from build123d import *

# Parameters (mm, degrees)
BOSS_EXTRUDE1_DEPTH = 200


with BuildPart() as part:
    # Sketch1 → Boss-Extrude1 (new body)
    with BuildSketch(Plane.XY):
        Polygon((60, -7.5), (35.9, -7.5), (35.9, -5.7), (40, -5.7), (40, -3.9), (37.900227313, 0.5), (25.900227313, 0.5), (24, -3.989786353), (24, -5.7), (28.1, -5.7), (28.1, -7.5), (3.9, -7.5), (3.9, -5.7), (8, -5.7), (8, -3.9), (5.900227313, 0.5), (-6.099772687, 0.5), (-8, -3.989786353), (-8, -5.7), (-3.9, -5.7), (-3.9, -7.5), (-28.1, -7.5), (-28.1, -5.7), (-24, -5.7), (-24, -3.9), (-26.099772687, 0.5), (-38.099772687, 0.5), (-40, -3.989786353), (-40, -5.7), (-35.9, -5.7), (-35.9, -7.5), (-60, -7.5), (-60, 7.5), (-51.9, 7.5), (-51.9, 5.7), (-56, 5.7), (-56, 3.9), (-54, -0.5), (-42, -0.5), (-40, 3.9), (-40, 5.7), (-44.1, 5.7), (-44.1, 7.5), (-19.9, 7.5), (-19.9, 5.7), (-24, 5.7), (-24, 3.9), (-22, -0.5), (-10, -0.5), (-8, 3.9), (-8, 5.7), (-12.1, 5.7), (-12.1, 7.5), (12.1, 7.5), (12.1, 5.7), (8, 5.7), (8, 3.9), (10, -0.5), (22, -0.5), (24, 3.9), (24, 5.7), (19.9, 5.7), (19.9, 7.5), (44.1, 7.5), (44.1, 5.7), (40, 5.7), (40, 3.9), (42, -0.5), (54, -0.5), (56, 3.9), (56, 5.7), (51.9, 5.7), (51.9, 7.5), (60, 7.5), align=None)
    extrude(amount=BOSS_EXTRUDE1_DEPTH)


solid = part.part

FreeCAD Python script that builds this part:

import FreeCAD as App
import Part
import Sketcher

V = App.Vector

doc = App.newDocument("Part")
body = doc.addObject("PartDesign::Body", "Body")

# Sketch on XY plane
sketch1 = body.newObject("Sketcher::SketchObject", "Sketch")
sketch1.AttachmentSupport = (doc.getObject("XY_Plane"), [""])
sketch1.MapMode = "FlatFace"
sketch1.addGeometry(Part.LineSegment(V(35.9, -7.5, 0), V(60, -7.5, 0)), False)
sketch1.addGeometry(Part.LineSegment(V(60, -7.5, 0), V(60, 7.5, 0)), False)
sketch1.addGeometry(Part.LineSegment(V(60, 7.5, 0), V(51.9, 7.5, 0)), False)
sketch1.addGeometry(Part.LineSegment(V(51.9, 7.5, 0), V(51.9, 5.7, 0)), False)
sketch1.addGeometry(Part.LineSegment(V(51.9, 5.7, 0), V(56, 5.7, 0)), False)
sketch1.addGeometry(Part.LineSegment(V(56, 5.7, 0), V(56, 3.9, 0)), False)
sketch1.addGeometry(Part.LineSegment(V(56, 3.9, 0), V(54, -0.5, 0)), False)
sketch1.addGeometry(Part.LineSegment(V(54, -0.5, 0), V(42, -0.5, 0)), False)
sketch1.addGeometry(Part.LineSegment(V(42, -0.5, 0), V(40, 3.9, 0)), False)
sketch1.addGeometry(Part.LineSegment(V(40, 3.9, 0), V(40, 5.7, 0)), False)
sketch1.addGeometry(Part.LineSegment(V(40, 5.7, 0), V(44.1, 5.7, 0)), False)
sketch1.addGeometry(Part.LineSegment(V(44.1, 5.7, 0), V(44.1, 7.5, 0)), False)
sketch1.addGeometry(Part.LineSegment(V(44.1, 7.5, 0), V(19.9, 7.5, 0)), False)
sketch1.addGeometry(Part.LineSegment(V(19.9, 7.5, 0), V(19.9, 5.7, 0)), False)
sketch1.addGeometry(Part.LineSegment(V(19.9, 5.7, 0), V(24, 5.7, 0)), False)
sketch1.addGeometry(Part.LineSegment(V(24, 5.7, 0), V(24, 3.9, 0)), False)
sketch1.addGeometry(Part.LineSegment(V(24, 3.9, 0), V(22, -0.5, 0)), False)
sketch1.addGeometry(Part.LineSegment(V(22, -0.5, 0), V(10, -0.5, 0)), False)
sketch1.addGeometry(Part.LineSegment(V(10, -0.5, 0), V(8, 3.9, 0)), False)
sketch1.addGeometry(Part.LineSegment(V(8, 3.9, 0), V(8, 5.7, 0)), False)
sketch1.addGeometry(Part.LineSegment(V(8, 5.7, 0), V(12.1, 5.7, 0)), False)
sketch1.addGeometry(Part.LineSegment(V(12.1, 5.7, 0), V(12.1, 7.5, 0)), False)
sketch1.addGeometry(Part.LineSegment(V(12.1, 7.5, 0), V(-12.1, 7.5, 0)), False)
sketch1.addGeometry(Part.LineSegment(V(-12.1, 7.5, 0), V(-12.1, 5.7, 0)), False)
sketch1.addGeometry(Part.LineSegment(V(-12.1, 5.7, 0), V(-8, 5.7, 0)), False)
sketch1.addGeometry(Part.LineSegment(V(-8, 5.7, 0), V(-8, 3.9, 0)), False)
sketch1.addGeometry(Part.LineSegment(V(-8, 3.9, 0), V(-10, -0.5, 0)), False)
sketch1.addGeometry(Part.LineSegment(V(-10, -0.5, 0), V(-22, -0.5, 0)), False)
sketch1.addGeometry(Part.LineSegment(V(-22, -0.5, 0), V(-24, 3.9, 0)), False)
sketch1.addGeometry(Part.LineSegment(V(-24, 3.9, 0), V(-24, 5.7, 0)), False)
sketch1.addGeometry(Part.LineSegment(V(-24, 5.7, 0), V(-19.9, 5.7, 0)), False)
sketch1.addGeometry(Part.LineSegment(V(-19.9, 5.7, 0), V(-19.9, 7.5, 0)), False)
sketch1.addGeometry(Part.LineSegment(V(-19.9, 7.5, 0), V(-44.1, 7.5, 0)), False)
sketch1.addGeometry(Part.LineSegment(V(-44.1, 7.5, 0), V(-44.1, 5.7, 0)), False)
sketch1.addGeometry(Part.LineSegment(V(-44.1, 5.7, 0), V(-40, 5.7, 0)), False)
sketch1.addGeometry(Part.LineSegment(V(-40, 5.7, 0), V(-40, 3.9, 0)), False)
sketch1.addGeometry(Part.LineSegment(V(-40, 3.9, 0), V(-42, -0.5, 0)), False)
sketch1.addGeometry(Part.LineSegment(V(-42, -0.5, 0), V(-54, -0.5, 0)), False)
sketch1.addGeometry(Part.LineSegment(V(-54, -0.5, 0), V(-56, 3.9, 0)), False)
sketch1.addGeometry(Part.LineSegment(V(-56, 3.9, 0), V(-56, 5.7, 0)), False)
sketch1.addGeometry(Part.LineSegment(V(-56, 5.7, 0), V(-51.9, 5.7, 0)), False)
sketch1.addGeometry(Part.LineSegment(V(-51.9, 5.7, 0), V(-51.9, 7.5, 0)), False)
sketch1.addGeometry(Part.LineSegment(V(-51.9, 7.5, 0), V(-60, 7.5, 0)), False)
sketch1.addGeometry(Part.LineSegment(V(-60, 7.5, 0), V(-60, -7.5, 0)), False)
sketch1.addGeometry(Part.LineSegment(V(-60, -7.5, 0), V(-35.9, -7.5, 0)), False)
sketch1.addGeometry(Part.LineSegment(V(-35.9, -7.5, 0), V(-35.9, -5.7, 0)), False)
sketch1.addGeometry(Part.LineSegment(V(-35.9, -5.7, 0), V(-40, -5.7, 0)), False)
sketch1.addGeometry(Part.LineSegment(V(-40, -5.7, 0), V(-40, -4, 0)), False)
sketch1.addGeometry(Part.LineSegment(V(-40, -4, 0), V(-38.1, 0.5, 0)), False)
sketch1.addGeometry(Part.LineSegment(V(-38.1, 0.5, 0), V(-26.1, 0.5, 0)), False)
sketch1.addGeometry(Part.LineSegment(V(-26.1, 0.5, 0), V(-24, -3.9, 0)), False)
sketch1.addGeometry(Part.LineSegment(V(-24, -3.9, 0), V(-24, -5.7, 0)), False)
sketch1.addGeometry(Part.LineSegment(V(-24, -5.7, 0), V(-28.1, -5.7, 0)), False)
sketch1.addGeometry(Part.LineSegment(V(-28.1, -5.7, 0), V(-28.1, -7.5, 0)), False)
sketch1.addGeometry(Part.LineSegment(V(-28.1, -7.5, 0), V(-3.9, -7.5, 0)), False)
sketch1.addGeometry(Part.LineSegment(V(-3.9, -7.5, 0), V(-3.9, -5.7, 0)), False)
sketch1.addGeometry(Part.LineSegment(V(-3.9, -5.7, 0), V(-8, -5.7, 0)), False)
sketch1.addGeometry(Part.LineSegment(V(-8, -5.7, 0), V(-8, -4, 0)), False)
sketch1.addGeometry(Part.LineSegment(V(-8, -4, 0), V(-6.1, 0.5, 0)), False)
sketch1.addGeometry(Part.LineSegment(V(-6.1, 0.5, 0), V(5.9, 0.5, 0)), False)
sketch1.addGeometry(Part.LineSegment(V(5.9, 0.5, 0), V(8, -3.9, 0)), False)
sketch1.addGeometry(Part.LineSegment(V(8, -3.9, 0), V(8, -5.7, 0)), False)
sketch1.addGeometry(Part.LineSegment(V(8, -5.7, 0), V(3.9, -5.7, 0)), False)
sketch1.addGeometry(Part.LineSegment(V(3.9, -5.7, 0), V(3.9, -7.5, 0)), False)
sketch1.addGeometry(Part.LineSegment(V(3.9, -7.5, 0), V(28.1, -7.5, 0)), False)
sketch1.addGeometry(Part.LineSegment(V(28.1, -7.5, 0), V(28.1, -5.7, 0)), False)
sketch1.addGeometry(Part.LineSegment(V(28.1, -5.7, 0), V(24, -5.7, 0)), False)
sketch1.addGeometry(Part.LineSegment(V(24, -5.7, 0), V(24, -4, 0)), False)
sketch1.addGeometry(Part.LineSegment(V(24, -4, 0), V(25.9, 0.5, 0)), False)
sketch1.addGeometry(Part.LineSegment(V(25.9, 0.5, 0), V(37.9, 0.5, 0)), False)
sketch1.addGeometry(Part.LineSegment(V(37.9, 0.5, 0), V(40, -3.9, 0)), False)
sketch1.addGeometry(Part.LineSegment(V(40, -3.9, 0), V(40, -5.7, 0)), False)
sketch1.addGeometry(Part.LineSegment(V(40, -5.7, 0), V(35.9, -5.7, 0)), False)
sketch1.addGeometry(Part.LineSegment(V(35.9, -5.7, 0), V(35.9, -7.5, 0)), False)
sketch1.addConstraint(Sketcher.Constraint("Coincident", 0, 2, 1, 1))
sketch1.addConstraint(Sketcher.Constraint("Coincident", 1, 2, 2, 1))
sketch1.addConstraint(Sketcher.Constraint("Coincident", 2, 2, 3, 1))
sketch1.addConstraint(Sketcher.Constraint("Coincident", 3, 2, 4, 1))
sketch1.addConstraint(Sketcher.Constraint("Coincident", 4, 2, 5, 1))
sketch1.addConstraint(Sketcher.Constraint("Coincident", 5, 2, 6, 1))
sketch1.addConstraint(Sketcher.Constraint("Coincident", 6, 2, 7, 1))
sketch1.addConstraint(Sketcher.Constraint("Coincident", 7, 2, 8, 1))
sketch1.addConstraint(Sketcher.Constraint("Coincident", 8, 2, 9, 1))
sketch1.addConstraint(Sketcher.Constraint("Coincident", 9, 2, 10, 1))
sketch1.addConstraint(Sketcher.Constraint("Coincident", 10, 2, 11, 1))
sketch1.addConstraint(Sketcher.Constraint("Coincident", 11, 2, 12, 1))
sketch1.addConstraint(Sketcher.Constraint("Coincident", 12, 2, 13, 1))
sketch1.addConstraint(Sketcher.Constraint("Coincident", 13, 2, 14, 1))
sketch1.addConstraint(Sketcher.Constraint("Coincident", 14, 2, 15, 1))
sketch1.addConstraint(Sketcher.Constraint("Coincident", 15, 2, 16, 1))
sketch1.addConstraint(Sketcher.Constraint("Coincident", 16, 2, 17, 1))
sketch1.addConstraint(Sketcher.Constraint("Coincident", 17, 2, 18, 1))
sketch1.addConstraint(Sketcher.Constraint("Coincident", 18, 2, 19, 1))
sketch1.addConstraint(Sketcher.Constraint("Coincident", 19, 2, 20, 1))
sketch1.addConstraint(Sketcher.Constraint("Coincident", 20, 2, 21, 1))
sketch1.addConstraint(Sketcher.Constraint("Coincident", 21, 2, 22, 1))
sketch1.addConstraint(Sketcher.Constraint("Coincident", 22, 2, 23, 1))
sketch1.addConstraint(Sketcher.Constraint("Coincident", 23, 2, 24, 1))
sketch1.addConstraint(Sketcher.Constraint("Coincident", 24, 2, 25, 1))
sketch1.addConstraint(Sketcher.Constraint("Coincident", 25, 2, 26, 1))
sketch1.addConstraint(Sketcher.Constraint("Coincident", 26, 2, 27, 1))
sketch1.addConstraint(Sketcher.Constraint("Coincident", 27, 2, 28, 1))
sketch1.addConstraint(Sketcher.Constraint("Coincident", 28, 2, 29, 1))
sketch1.addConstraint(Sketcher.Constraint("Coincident", 29, 2, 30, 1))
sketch1.addConstraint(Sketcher.Constraint("Coincident", 30, 2, 31, 1))
sketch1.addConstraint(Sketcher.Constraint("Coincident", 31, 2, 32, 1))
sketch1.addConstraint(Sketcher.Constraint("Coincident", 32, 2, 33, 1))
sketch1.addConstraint(Sketcher.Constraint("Coincident", 33, 2, 34, 1))
sketch1.addConstraint(Sketcher.Constraint("Coincident", 34, 2, 35, 1))
sketch1.addConstraint(Sketcher.Constraint("Coincident", 35, 2, 36, 1))
sketch1.addConstraint(Sketcher.Constraint("Coincident", 36, 2, 37, 1))
sketch1.addConstraint(Sketcher.Constraint("Coincident", 37, 2, 38, 1))
sketch1.addConstraint(Sketcher.Constraint("Coincident", 38, 2, 39, 1))
sketch1.addConstraint(Sketcher.Constraint("Coincident", 39, 2, 40, 1))
sketch1.addConstraint(Sketcher.Constraint("Coincident", 40, 2, 41, 1))
sketch1.addConstraint(Sketcher.Constraint("Coincident", 41, 2, 42, 1))
sketch1.addConstraint(Sketcher.Constraint("Coincident", 42, 2, 43, 1))
sketch1.addConstraint(Sketcher.Constraint("Coincident", 43, 2, 44, 1))
sketch1.addConstraint(Sketcher.Constraint("Coincident", 44, 2, 45, 1))
sketch1.addConstraint(Sketcher.Constraint("Coincident", 45, 2, 46, 1))
sketch1.addConstraint(Sketcher.Constraint("Coincident", 46, 2, 47, 1))
sketch1.addConstraint(Sketcher.Constraint("Coincident", 47, 2, 48, 1))
sketch1.addConstraint(Sketcher.Constraint("Coincident", 48, 2, 49, 1))
sketch1.addConstraint(Sketcher.Constraint("Coincident", 49, 2, 50, 1))
sketch1.addConstraint(Sketcher.Constraint("Coincident", 50, 2, 51, 1))
sketch1.addConstraint(Sketcher.Constraint("Coincident", 51, 2, 52, 1))
sketch1.addConstraint(Sketcher.Constraint("Coincident", 52, 2, 53, 1))
sketch1.addConstraint(Sketcher.Constraint("Coincident", 53, 2, 54, 1))
sketch1.addConstraint(Sketcher.Constraint("Coincident", 54, 2, 55, 1))
sketch1.addConstraint(Sketcher.Constraint("Coincident", 55, 2, 56, 1))
sketch1.addConstraint(Sketcher.Constraint("Coincident", 56, 2, 57, 1))
sketch1.addConstraint(Sketcher.Constraint("Coincident", 57, 2, 58, 1))
sketch1.addConstraint(Sketcher.Constraint("Coincident", 58, 2, 59, 1))
sketch1.addConstraint(Sketcher.Constraint("Coincident", 59, 2, 60, 1))
sketch1.addConstraint(Sketcher.Constraint("Coincident", 60, 2, 61, 1))
sketch1.addConstraint(Sketcher.Constraint("Coincident", 61, 2, 62, 1))
sketch1.addConstraint(Sketcher.Constraint("Coincident", 62, 2, 63, 1))
sketch1.addConstraint(Sketcher.Constraint("Coincident", 63, 2, 64, 1))
sketch1.addConstraint(Sketcher.Constraint("Coincident", 64, 2, 65, 1))
sketch1.addConstraint(Sketcher.Constraint("Coincident", 65, 2, 66, 1))
sketch1.addConstraint(Sketcher.Constraint("Coincident", 66, 2, 67, 1))
sketch1.addConstraint(Sketcher.Constraint("Coincident", 67, 2, 68, 1))
sketch1.addConstraint(Sketcher.Constraint("Coincident", 68, 2, 69, 1))
sketch1.addConstraint(Sketcher.Constraint("Coincident", 69, 2, 70, 1))
sketch1.addConstraint(Sketcher.Constraint("Coincident", 70, 2, 71, 1))
sketch1.addConstraint(Sketcher.Constraint("Coincident", 71, 2, 72, 1))
sketch1.addConstraint(Sketcher.Constraint("Coincident", 72, 2, 73, 1))
sketch1.addConstraint(Sketcher.Constraint("Coincident", 73, 2, 0, 1))
sketch1.addConstraint(Sketcher.Constraint("Horizontal", 0))
sketch1.addConstraint(Sketcher.Constraint("Vertical", 1))
sketch1.addConstraint(Sketcher.Constraint("Horizontal", 2))
sketch1.addConstraint(Sketcher.Constraint("Vertical", 3))
sketch1.addConstraint(Sketcher.Constraint("Horizontal", 4))
sketch1.addConstraint(Sketcher.Constraint("Vertical", 5))
sketch1.addConstraint(Sketcher.Constraint("Horizontal", 7))
sketch1.addConstraint(Sketcher.Constraint("Vertical", 9))
sketch1.addConstraint(Sketcher.Constraint("Horizontal", 10))
sketch1.addConstraint(Sketcher.Constraint("Vertical", 11))
sketch1.addConstraint(Sketcher.Constraint("Horizontal", 12))
sketch1.addConstraint(Sketcher.Constraint("Vertical", 13))
sketch1.addConstraint(Sketcher.Constraint("Horizontal", 14))
sketch1.addConstraint(Sketcher.Constraint("Vertical", 15))
sketch1.addConstraint(Sketcher.Constraint("Horizontal", 17))
sketch1.addConstraint(Sketcher.Constraint("Vertical", 19))
sketch1.addConstraint(Sketcher.Constraint("Horizontal", 20))
sketch1.addConstraint(Sketcher.Constraint("Vertical", 21))
sketch1.addConstraint(Sketcher.Constraint("Horizontal", 22))
sketch1.addConstraint(Sketcher.Constraint("Vertical", 23))
sketch1.addConstraint(Sketcher.Constraint("Horizontal", 24))
sketch1.addConstraint(Sketcher.Constraint("Vertical", 25))
sketch1.addConstraint(Sketcher.Constraint("Horizontal", 27))
sketch1.addConstraint(Sketcher.Constraint("Vertical", 29))
sketch1.addConstraint(Sketcher.Constraint("Horizontal", 30))
sketch1.addConstraint(Sketcher.Constraint("Vertical", 31))
sketch1.addConstraint(Sketcher.Constraint("Horizontal", 32))
sketch1.addConstraint(Sketcher.Constraint("Vertical", 33))
sketch1.addConstraint(Sketcher.Constraint("Horizontal", 34))
sketch1.addConstraint(Sketcher.Constraint("Vertical", 35))
sketch1.addConstraint(Sketcher.Constraint("Horizontal", 37))
sketch1.addConstraint(Sketcher.Constraint("Vertical", 39))
sketch1.addConstraint(Sketcher.Constraint("Horizontal", 40))
sketch1.addConstraint(Sketcher.Constraint("Vertical", 41))
sketch1.addConstraint(Sketcher.Constraint("Horizontal", 42))
sketch1.addConstraint(Sketcher.Constraint("Vertical", 43))
sketch1.addConstraint(Sketcher.Constraint("Horizontal", 44))
sketch1.addConstraint(Sketcher.Constraint("Vertical", 45))
sketch1.addConstraint(Sketcher.Constraint("Horizontal", 46))
sketch1.addConstraint(Sketcher.Constraint("Vertical", 47))
sketch1.addConstraint(Sketcher.Constraint("Horizontal", 49))
sketch1.addConstraint(Sketcher.Constraint("Vertical", 51))
sketch1.addConstraint(Sketcher.Constraint("Horizontal", 52))
sketch1.addConstraint(Sketcher.Constraint("Vertical", 53))
sketch1.addConstraint(Sketcher.Constraint("Horizontal", 54))
sketch1.addConstraint(Sketcher.Constraint("Vertical", 55))
sketch1.addConstraint(Sketcher.Constraint("Horizontal", 56))
sketch1.addConstraint(Sketcher.Constraint("Vertical", 57))
sketch1.addConstraint(Sketcher.Constraint("Horizontal", 59))
sketch1.addConstraint(Sketcher.Constraint("Vertical", 61))
sketch1.addConstraint(Sketcher.Constraint("Horizontal", 62))
sketch1.addConstraint(Sketcher.Constraint("Vertical", 63))
sketch1.addConstraint(Sketcher.Constraint("Horizontal", 64))
sketch1.addConstraint(Sketcher.Constraint("Vertical", 65))
sketch1.addConstraint(Sketcher.Constraint("Horizontal", 66))
sketch1.addConstraint(Sketcher.Constraint("Vertical", 67))
sketch1.addConstraint(Sketcher.Constraint("Horizontal", 69))
sketch1.addConstraint(Sketcher.Constraint("Vertical", 71))
sketch1.addConstraint(Sketcher.Constraint("Horizontal", 72))
sketch1.addConstraint(Sketcher.Constraint("Vertical", 73))
sketch1.addConstraint(Sketcher.Constraint("Symmetric", 0, 2, 42, 2, -1, 1))
sketch1.addConstraint(Sketcher.Constraint("Symmetric", 9, 2, 46, 2, -1, 1))
sketch1.addConstraint(Sketcher.Constraint("Symmetric", 15, 2, 50, 2, -1, 1))
sketch1.addConstraint(Sketcher.Constraint("Symmetric", 19, 2, 56, 2, -1, 1))
sketch1.addConstraint(Sketcher.Constraint("Symmetric", 25, 2, 60, 2, -1, 1))
sketch1.addConstraint(Sketcher.Constraint("Symmetric", 29, 2, 66, 2, -1, 1))
sketch1.addConstraint(Sketcher.Constraint("Symmetric", 35, 2, 70, 2, -1, 1))
sketch1.addConstraint(Sketcher.Constraint("Symmetric", 20, 2, 23, 2, -2))
sketch1.addConstraint(Sketcher.Constraint("Symmetric", 18, 2, 25, 2, -2))
sketch1.addConstraint(Sketcher.Constraint("Symmetric", 17, 2, 26, 2, -2))
sketch1.addConstraint(Sketcher.Constraint("Symmetric", 15, 2, 28, 2, -2))
sketch1.addConstraint(Sketcher.Constraint("Symmetric", 13, 2, 30, 2, -2))
sketch1.addConstraint(Sketcher.Constraint("Symmetric", 11, 2, 32, 2, -2))
sketch1.addConstraint(Sketcher.Constraint("Symmetric", 9, 2, 34, 2, -2))
sketch1.addConstraint(Sketcher.Constraint("Symmetric", 7, 2, 36, 2, -2))
sketch1.addConstraint(Sketcher.Constraint("Symmetric", 5, 2, 38, 2, -2))
sketch1.addConstraint(Sketcher.Constraint("Symmetric", 3, 2, 40, 2, -2))
sketch1.addConstraint(Sketcher.Constraint("Symmetric", 55, 2, 62, 2, -2))
sketch1.addConstraint(Sketcher.Constraint("Symmetric", 53, 2, 64, 2, -2))
sketch1.addConstraint(Sketcher.Constraint("Symmetric", 45, 2, 72, 2, -2))
sketch1.addConstraint(Sketcher.Constraint("Parallel", 6, 16))
sketch1.addConstraint(Sketcher.Constraint("Parallel", 8, 18))
sketch1.addConstraint(Sketcher.Constraint("Parallel", 16, 26))
sketch1.addConstraint(Sketcher.Constraint("Parallel", 18, 28))
sketch1.addConstraint(Sketcher.Constraint("Parallel", 26, 36))
sketch1.addConstraint(Sketcher.Constraint("Parallel", 28, 38))
sketch1.addConstraint(Sketcher.Constraint("Parallel", 48, 58))
sketch1.addConstraint(Sketcher.Constraint("Parallel", 50, 60))
sketch1.addConstraint(Sketcher.Constraint("Parallel", 58, 68))
sketch1.addConstraint(Sketcher.Constraint("Parallel", 60, 70))
sketch1.addConstraint(Sketcher.Constraint("Horizontal", 5, 2, 8, 2))
sketch1.addConstraint(Sketcher.Constraint("Horizontal", 4, 2, 9, 2))
sketch1.addConstraint(Sketcher.Constraint("Horizontal", 2, 2, 11, 2))
sketch1.addConstraint(Sketcher.Constraint("Horizontal", 10, 2, 13, 2))
sketch1.addConstraint(Sketcher.Constraint("Horizontal", 8, 2, 15, 2))
sketch1.addConstraint(Sketcher.Constraint("Horizontal", 7, 2, 16, 2))
sketch1.addConstraint(Sketcher.Constraint("Horizontal", 15, 2, 18, 2))
sketch1.addConstraint(Sketcher.Constraint("Horizontal", 14, 2, 19, 2))
sketch1.addConstraint(Sketcher.Constraint("Horizontal", 12, 2, 21, 2))
sketch1.addConstraint(Sketcher.Constraint("Horizontal", 32, 2, 41, 2))
sketch1.addConstraint(Sketcher.Constraint("Horizontal", 0, 2, 43, 2))
sketch1.addConstraint(Sketcher.Constraint("Horizontal", 46, 2, 51, 2))
sketch1.addConstraint(Sketcher.Constraint("Horizontal", 44, 2, 53, 2))
sketch1.addConstraint(Sketcher.Constraint("Horizontal", 47, 2, 57, 2))
sketch1.addConstraint(Sketcher.Constraint("Horizontal", 49, 2, 58, 2))
sketch1.addConstraint(Sketcher.Constraint("Horizontal", 57, 2, 67, 2))
sketch1.addConstraint(Sketcher.Constraint("Horizontal", 59, 2, 68, 2))
sketch1.addConstraint(Sketcher.Constraint("Equal", 4, 10))
sketch1.addConstraint(Sketcher.Constraint("Equal", 10, 14))
sketch1.addConstraint(Sketcher.Constraint("Equal", 7, 17))
sketch1.addConstraint(Sketcher.Constraint("Equal", 14, 20))
sketch1.addConstraint(Sketcher.Constraint("Equal", 12, 22))
sketch1.addConstraint(Sketcher.Constraint("Equal", 40, 46))
sketch1.addConstraint(Sketcher.Constraint("Equal", 37, 49))
sketch1.addConstraint(Sketcher.Constraint("Equal", 46, 52))
sketch1.addConstraint(Sketcher.Constraint("Equal", 32, 54))
sketch1.addConstraint(Sketcher.Constraint("Equal", 52, 56))
sketch1.addConstraint(Sketcher.Constraint("Equal", 3, 5))
sketch1.addConstraint(Sketcher.Constraint("Equal", 48, 50))
sketch1.addConstraint(Sketcher.Constraint("DistanceX", 7, 2, 7, 1, 12.0))
sketch1.addConstraint(Sketcher.Constraint("DistanceY", 1, 1, 1, 2, 15.0))
sketch1.addConstraint(Sketcher.Constraint("DistanceX", 0, 1, 0, 2, 24.1))
sketch1.addConstraint(Sketcher.Constraint("DistanceX", 2, 2, 2, 1, 8.1))
sketch1.addConstraint(Sketcher.Constraint("DistanceX", 4, 1, 4, 2, 4.1))
sketch1.addConstraint(Sketcher.Constraint("DistanceY", 3, 2, 3, 1, 1.8))
sketch1.addConstraint(Sketcher.Constraint("DistanceY", 6, 2, -1, 1, 0.5))
sketch1.addConstraint(Sketcher.Constraint("DistanceY", -1, 1, 48, 2, 0.5))
sketch1.addConstraint(Sketcher.Constraint("Distance", 48, 4.875351))
pad1 = body.newObject("PartDesign::Pad", "Pad")
pad1.Profile = sketch1
pad1.Length = 200

doc.recompute()
